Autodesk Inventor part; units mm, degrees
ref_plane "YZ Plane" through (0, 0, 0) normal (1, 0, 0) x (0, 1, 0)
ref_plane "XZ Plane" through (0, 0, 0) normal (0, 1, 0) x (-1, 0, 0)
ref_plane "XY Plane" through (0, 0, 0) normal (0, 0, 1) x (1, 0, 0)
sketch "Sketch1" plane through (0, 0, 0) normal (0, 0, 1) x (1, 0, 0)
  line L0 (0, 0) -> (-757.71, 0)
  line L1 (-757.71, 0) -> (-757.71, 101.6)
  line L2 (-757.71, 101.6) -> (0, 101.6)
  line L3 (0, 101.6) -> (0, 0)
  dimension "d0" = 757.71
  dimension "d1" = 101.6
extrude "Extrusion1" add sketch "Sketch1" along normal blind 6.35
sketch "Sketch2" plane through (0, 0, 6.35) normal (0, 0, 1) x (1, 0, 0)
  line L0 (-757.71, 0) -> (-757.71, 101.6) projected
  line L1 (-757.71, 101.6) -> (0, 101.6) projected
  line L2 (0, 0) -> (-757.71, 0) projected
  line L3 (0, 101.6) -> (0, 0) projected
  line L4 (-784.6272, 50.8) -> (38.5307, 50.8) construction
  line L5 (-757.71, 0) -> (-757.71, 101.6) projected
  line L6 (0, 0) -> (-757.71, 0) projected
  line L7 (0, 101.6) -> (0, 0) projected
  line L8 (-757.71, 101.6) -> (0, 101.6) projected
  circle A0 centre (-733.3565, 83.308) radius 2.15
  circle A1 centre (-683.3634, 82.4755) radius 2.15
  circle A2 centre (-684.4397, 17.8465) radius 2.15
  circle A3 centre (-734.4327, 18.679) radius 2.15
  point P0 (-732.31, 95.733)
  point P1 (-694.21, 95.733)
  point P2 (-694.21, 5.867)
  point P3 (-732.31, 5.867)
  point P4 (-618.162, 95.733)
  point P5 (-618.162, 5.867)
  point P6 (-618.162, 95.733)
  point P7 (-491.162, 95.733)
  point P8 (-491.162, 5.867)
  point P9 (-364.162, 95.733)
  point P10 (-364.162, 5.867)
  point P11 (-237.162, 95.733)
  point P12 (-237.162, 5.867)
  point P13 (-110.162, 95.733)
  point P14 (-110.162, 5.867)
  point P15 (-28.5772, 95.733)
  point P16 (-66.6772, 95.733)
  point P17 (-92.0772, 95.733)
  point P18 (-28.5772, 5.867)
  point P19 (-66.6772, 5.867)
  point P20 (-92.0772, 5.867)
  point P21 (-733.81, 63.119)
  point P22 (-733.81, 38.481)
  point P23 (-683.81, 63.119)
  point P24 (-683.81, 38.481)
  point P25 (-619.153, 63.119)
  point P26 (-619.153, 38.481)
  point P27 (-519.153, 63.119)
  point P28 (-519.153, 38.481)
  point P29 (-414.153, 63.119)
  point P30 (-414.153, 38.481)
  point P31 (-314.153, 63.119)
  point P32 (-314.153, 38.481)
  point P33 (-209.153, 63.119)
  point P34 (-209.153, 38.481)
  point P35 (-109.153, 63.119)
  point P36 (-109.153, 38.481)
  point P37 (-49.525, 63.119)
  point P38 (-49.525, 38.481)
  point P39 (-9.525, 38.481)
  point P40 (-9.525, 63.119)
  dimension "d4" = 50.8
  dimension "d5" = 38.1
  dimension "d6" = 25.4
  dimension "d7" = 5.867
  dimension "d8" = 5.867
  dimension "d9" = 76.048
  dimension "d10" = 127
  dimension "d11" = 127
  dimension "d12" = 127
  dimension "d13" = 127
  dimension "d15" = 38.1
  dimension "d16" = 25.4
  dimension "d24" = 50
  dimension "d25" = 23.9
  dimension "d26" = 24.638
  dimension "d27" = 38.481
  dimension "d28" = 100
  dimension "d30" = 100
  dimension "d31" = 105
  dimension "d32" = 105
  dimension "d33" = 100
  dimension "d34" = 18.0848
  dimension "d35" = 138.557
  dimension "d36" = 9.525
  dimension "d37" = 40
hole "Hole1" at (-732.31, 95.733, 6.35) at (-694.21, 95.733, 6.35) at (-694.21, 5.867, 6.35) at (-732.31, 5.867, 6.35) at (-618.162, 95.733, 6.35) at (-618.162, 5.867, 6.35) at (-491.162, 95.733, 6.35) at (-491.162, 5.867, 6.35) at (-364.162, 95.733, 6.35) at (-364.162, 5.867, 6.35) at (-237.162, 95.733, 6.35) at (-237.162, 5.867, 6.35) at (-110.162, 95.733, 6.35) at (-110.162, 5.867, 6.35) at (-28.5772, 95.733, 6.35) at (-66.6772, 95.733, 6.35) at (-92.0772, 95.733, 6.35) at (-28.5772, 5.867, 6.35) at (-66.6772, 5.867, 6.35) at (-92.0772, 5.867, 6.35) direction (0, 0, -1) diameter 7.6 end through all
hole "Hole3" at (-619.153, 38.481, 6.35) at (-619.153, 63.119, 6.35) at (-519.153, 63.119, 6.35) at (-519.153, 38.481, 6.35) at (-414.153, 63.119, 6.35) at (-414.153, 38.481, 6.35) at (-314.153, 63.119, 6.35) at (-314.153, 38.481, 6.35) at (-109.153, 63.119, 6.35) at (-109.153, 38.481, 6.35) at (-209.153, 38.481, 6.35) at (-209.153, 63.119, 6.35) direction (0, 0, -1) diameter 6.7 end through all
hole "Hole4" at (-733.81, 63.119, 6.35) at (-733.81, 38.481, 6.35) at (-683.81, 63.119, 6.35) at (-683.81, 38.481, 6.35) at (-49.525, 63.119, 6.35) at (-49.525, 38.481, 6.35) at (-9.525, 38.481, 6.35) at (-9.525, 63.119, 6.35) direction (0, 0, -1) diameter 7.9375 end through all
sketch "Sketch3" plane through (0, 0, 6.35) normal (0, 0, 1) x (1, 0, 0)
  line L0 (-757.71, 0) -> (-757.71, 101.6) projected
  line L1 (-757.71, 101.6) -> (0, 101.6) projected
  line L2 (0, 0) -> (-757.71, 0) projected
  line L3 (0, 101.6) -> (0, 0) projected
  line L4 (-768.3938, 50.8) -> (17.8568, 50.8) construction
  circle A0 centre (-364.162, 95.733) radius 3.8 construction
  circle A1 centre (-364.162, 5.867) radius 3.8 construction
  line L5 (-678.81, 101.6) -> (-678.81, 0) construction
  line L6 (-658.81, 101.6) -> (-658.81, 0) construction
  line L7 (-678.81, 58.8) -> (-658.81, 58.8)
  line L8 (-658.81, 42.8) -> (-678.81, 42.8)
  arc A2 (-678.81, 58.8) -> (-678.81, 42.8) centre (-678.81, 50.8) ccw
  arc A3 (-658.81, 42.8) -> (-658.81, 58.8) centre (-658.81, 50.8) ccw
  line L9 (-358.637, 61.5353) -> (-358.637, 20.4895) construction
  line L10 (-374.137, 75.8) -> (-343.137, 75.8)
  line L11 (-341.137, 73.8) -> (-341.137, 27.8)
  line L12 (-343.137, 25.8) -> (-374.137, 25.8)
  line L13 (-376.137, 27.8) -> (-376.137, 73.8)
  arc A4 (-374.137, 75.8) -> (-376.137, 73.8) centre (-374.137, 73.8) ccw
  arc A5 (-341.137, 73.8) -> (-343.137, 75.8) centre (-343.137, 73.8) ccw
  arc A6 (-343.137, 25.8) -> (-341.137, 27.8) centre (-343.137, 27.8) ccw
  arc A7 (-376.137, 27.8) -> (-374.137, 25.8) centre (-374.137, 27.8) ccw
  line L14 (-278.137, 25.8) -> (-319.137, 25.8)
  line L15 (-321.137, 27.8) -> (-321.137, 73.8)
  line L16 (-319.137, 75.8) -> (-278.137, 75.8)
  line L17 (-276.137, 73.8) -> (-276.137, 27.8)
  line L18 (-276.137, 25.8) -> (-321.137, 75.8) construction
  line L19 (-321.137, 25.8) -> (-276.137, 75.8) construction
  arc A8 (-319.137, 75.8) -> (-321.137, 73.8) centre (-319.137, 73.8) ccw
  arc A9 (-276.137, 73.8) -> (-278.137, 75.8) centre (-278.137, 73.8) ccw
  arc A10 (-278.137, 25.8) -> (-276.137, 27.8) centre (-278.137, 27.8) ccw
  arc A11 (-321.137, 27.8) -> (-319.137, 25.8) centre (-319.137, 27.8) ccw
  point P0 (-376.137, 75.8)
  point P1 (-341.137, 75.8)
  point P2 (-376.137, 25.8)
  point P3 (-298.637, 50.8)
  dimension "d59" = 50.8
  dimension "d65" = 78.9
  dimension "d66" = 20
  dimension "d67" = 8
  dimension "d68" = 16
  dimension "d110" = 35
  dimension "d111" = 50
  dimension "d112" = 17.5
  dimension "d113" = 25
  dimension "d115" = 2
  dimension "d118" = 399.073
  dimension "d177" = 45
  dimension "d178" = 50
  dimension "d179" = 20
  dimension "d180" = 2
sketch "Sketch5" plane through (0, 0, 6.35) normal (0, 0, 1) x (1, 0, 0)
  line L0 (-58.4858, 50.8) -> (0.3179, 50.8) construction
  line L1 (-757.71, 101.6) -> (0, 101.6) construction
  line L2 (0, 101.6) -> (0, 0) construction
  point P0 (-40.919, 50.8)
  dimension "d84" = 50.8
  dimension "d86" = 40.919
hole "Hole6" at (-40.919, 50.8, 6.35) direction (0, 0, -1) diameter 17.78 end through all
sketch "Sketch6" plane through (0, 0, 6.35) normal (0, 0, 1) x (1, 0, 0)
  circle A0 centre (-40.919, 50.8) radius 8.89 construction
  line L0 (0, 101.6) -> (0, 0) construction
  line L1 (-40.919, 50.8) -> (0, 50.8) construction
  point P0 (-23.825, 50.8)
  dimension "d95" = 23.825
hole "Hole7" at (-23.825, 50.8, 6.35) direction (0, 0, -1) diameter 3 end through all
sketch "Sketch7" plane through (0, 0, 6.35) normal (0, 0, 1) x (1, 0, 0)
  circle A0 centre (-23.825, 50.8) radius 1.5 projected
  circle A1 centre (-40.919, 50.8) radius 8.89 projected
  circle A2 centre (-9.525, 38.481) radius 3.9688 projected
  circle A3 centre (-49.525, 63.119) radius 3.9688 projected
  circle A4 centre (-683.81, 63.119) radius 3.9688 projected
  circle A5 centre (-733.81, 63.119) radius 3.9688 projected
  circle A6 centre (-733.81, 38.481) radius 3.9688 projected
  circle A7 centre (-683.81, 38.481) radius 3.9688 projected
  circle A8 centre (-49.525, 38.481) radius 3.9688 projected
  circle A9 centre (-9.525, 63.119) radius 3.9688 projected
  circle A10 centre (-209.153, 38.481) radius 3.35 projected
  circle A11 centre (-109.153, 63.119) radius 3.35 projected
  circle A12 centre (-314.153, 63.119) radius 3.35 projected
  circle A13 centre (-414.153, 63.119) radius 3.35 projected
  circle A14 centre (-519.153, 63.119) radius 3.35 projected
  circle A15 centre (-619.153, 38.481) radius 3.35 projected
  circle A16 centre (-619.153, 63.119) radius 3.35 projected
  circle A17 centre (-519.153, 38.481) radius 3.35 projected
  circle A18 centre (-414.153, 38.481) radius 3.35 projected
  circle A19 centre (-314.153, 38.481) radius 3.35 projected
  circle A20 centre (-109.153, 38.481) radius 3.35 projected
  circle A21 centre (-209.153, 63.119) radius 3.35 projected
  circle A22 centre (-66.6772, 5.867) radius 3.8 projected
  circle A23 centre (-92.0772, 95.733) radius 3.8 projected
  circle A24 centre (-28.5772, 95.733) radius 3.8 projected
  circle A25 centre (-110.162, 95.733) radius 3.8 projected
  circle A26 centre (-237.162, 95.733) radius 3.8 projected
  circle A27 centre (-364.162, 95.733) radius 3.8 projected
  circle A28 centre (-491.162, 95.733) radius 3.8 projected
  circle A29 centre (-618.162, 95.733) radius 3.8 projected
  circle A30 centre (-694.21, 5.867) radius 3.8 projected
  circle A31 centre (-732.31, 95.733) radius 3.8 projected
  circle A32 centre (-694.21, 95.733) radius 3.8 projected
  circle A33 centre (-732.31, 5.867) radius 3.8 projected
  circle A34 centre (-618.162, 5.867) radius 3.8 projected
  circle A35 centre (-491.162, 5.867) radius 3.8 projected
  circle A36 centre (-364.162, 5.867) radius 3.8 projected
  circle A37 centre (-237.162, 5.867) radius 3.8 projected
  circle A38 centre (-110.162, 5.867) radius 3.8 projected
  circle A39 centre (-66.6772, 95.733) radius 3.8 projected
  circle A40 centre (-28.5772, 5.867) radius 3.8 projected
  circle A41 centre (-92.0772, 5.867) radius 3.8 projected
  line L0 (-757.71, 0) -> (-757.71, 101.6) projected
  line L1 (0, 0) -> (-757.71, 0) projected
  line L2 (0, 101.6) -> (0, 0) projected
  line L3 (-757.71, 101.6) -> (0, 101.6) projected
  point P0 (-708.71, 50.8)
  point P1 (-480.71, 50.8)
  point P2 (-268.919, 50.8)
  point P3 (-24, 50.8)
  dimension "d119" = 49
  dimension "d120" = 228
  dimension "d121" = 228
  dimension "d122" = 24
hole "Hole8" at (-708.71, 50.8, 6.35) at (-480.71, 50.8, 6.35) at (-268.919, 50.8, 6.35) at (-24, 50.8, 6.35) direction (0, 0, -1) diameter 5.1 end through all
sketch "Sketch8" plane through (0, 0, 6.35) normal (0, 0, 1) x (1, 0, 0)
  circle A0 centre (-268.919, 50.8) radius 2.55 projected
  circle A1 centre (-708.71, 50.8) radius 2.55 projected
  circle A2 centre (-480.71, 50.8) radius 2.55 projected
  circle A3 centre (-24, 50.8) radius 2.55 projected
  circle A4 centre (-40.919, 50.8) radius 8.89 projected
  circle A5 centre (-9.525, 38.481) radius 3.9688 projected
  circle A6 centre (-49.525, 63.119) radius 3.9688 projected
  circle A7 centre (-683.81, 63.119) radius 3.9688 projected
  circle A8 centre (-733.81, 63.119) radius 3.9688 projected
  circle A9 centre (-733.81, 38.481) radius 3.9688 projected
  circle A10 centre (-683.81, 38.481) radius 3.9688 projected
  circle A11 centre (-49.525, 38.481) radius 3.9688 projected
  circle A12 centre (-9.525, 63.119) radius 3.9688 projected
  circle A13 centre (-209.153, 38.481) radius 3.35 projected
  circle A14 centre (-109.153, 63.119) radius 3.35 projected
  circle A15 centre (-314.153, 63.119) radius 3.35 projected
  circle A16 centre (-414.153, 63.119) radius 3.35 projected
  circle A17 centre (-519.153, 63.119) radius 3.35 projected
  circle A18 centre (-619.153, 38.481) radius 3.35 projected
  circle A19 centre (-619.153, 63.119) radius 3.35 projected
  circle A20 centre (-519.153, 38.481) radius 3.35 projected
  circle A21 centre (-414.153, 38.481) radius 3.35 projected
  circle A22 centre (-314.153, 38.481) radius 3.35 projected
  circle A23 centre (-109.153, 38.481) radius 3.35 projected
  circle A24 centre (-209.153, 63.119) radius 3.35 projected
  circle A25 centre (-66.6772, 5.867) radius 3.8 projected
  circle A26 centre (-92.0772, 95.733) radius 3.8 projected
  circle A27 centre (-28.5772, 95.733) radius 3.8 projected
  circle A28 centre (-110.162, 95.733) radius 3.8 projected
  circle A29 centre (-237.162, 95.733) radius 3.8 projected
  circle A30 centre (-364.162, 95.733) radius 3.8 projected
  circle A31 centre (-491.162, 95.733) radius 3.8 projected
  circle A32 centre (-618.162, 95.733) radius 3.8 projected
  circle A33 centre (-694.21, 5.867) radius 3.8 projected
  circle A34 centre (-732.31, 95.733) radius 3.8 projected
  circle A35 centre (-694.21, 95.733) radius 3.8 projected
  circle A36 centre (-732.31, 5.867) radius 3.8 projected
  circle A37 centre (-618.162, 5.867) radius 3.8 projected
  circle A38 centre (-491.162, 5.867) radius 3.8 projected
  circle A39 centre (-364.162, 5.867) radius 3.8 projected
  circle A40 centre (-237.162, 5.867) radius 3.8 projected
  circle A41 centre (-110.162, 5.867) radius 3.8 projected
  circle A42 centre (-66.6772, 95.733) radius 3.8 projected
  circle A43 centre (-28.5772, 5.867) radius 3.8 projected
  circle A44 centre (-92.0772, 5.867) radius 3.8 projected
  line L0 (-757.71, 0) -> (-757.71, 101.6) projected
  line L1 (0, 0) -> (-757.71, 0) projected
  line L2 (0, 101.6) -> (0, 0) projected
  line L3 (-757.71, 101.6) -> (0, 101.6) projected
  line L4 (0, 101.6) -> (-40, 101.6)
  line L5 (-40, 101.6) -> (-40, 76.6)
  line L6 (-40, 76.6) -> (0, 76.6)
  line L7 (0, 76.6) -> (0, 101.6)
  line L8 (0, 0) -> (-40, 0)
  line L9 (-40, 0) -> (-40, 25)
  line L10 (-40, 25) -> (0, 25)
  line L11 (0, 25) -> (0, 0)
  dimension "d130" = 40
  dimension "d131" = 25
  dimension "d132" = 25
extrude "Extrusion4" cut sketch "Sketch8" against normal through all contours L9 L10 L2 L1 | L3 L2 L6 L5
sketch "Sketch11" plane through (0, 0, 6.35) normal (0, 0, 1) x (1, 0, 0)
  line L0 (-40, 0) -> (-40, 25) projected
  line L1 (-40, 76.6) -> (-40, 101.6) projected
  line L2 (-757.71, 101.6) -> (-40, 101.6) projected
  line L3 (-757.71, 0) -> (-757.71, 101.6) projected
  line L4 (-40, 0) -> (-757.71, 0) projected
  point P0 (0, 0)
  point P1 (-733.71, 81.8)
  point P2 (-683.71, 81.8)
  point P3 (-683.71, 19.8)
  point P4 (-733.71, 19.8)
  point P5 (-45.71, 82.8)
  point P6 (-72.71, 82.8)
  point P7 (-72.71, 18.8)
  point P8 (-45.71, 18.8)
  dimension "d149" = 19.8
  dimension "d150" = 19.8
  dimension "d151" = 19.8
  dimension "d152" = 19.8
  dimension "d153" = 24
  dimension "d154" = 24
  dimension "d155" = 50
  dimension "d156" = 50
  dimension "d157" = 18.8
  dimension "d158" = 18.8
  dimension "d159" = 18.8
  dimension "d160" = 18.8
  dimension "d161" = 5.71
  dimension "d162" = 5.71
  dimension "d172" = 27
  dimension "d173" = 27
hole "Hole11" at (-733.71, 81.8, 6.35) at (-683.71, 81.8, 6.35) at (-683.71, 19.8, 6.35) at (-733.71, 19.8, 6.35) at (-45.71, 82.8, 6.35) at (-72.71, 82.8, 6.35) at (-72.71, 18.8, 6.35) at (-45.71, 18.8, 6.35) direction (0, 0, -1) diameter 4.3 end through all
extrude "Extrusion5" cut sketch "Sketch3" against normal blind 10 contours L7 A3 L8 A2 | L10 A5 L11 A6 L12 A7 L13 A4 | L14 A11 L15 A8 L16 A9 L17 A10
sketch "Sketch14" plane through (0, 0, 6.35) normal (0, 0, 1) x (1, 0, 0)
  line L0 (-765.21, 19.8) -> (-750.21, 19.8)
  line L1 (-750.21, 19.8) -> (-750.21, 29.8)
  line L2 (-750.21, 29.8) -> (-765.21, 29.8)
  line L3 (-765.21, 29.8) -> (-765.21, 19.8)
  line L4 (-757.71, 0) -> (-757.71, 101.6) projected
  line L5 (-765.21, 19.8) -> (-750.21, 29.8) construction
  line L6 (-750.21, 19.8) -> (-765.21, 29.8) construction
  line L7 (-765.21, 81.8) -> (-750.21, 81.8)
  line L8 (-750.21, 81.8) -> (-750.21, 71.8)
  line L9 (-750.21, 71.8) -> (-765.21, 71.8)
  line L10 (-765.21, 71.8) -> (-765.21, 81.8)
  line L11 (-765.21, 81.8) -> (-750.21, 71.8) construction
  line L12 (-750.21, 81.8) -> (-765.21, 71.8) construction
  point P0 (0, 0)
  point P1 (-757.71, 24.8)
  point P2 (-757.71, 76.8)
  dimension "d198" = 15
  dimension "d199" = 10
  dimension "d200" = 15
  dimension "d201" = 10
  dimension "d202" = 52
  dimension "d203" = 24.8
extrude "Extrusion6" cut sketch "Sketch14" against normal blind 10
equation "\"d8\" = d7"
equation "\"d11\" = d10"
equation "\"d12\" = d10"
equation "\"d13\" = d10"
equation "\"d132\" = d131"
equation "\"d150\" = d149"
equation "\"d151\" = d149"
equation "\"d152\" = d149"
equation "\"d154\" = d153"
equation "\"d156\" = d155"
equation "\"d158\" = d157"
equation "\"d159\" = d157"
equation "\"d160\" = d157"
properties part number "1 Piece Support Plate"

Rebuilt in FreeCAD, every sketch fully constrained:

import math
import FreeCAD as App
import Part
import Sketcher

V = App.Vector


def add_polygon(sketch, points):
    """Adds a closed chain of lines whose ends are joined by coincident constraints."""
    first, n = sketch.GeometryCount, len(points)
    for a, b in zip(points, points[1:] + points[:1]):
        sketch.addGeometry(Part.LineSegment(App.Vector(*a, 0), App.Vector(*b, 0)), False)
    for i in range(n):
        sketch.addConstraint(Sketcher.Constraint("Coincident", first + i, 2, first + (i + 1) % n, 1))

doc = App.newDocument("Part")
params = doc.addObject("Spreadsheet::Sheet", "Params")
for row, (alias, value) in enumerate([
    ("sketch1_height", "101.6 mm"),
    ("sketch1_width", "757.71 mm"),
    ("pad1_length", "6.35 mm"),
    ("sketch2_diameter", "7.6 mm"),
    ("hole_diameter", "7.6 mm"),
    ("sketch3_diameter", "6.7 mm"),
    ("hole2_diameter", "6.7 mm"),
    ("hole3_diameter", "7.9375 mm"),
    ("sketch5_diameter", "17.78 mm"),
    ("hole4_diameter", "17.78 mm"),
    ("sketch6_diameter", "3 mm"),
    ("hole5_diameter", "3 mm"),
    ("sketch7_diameter", "5.1 mm"),
    ("hole6_diameter", "5.1 mm"),
    ("sketch8_width", "40 mm"),
    ("sketch8_height", "25 mm"),
    ("sketch8_diameter", "7.6 mm"),
    ("sketch9_diameter", "4.3 mm"),
    ("hole7_diameter", "4.3 mm"),
    ("sketch10_radius", "8 mm"),
    ("sketch10_radius2", "2 mm"),
    ("sketch10_width", "20 mm"),
    ("sketch10_width2", "41 mm"),
    ("sketch10_height", "46 mm"),
    ("pocket2_length", "10 mm"),
    ("sketch11_width", "15 mm"),
    ("sketch11_height", "10 mm"),
    ("pocket3_length", "10 mm"),
], start=1):
    params.set(f"A{row}", alias)
    params.set(f"B{row}", "=" + value)
    params.setAlias(f"B{row}", alias)

body = doc.addObject("PartDesign::Body", "Body")

sketch1 = body.newObject("Sketcher::SketchObject", "Sketch")
sketch1.AttachmentSupport = (doc.getObject("XY_Plane"), [""])
sketch1.MapMode = "FlatFace"
add_polygon(sketch1, [(-758, 0), (0, 0), (0, 102), (-758, 102)])
sketch1.addConstraint([
    Sketcher.Constraint("Horizontal", 0),
    Sketcher.Constraint("Vertical", 1),
    Sketcher.Constraint("Horizontal", 2),
    Sketcher.Constraint("Vertical", 3),
    Sketcher.Constraint("Coincident", 0, 2, -1, 1),
    Sketcher.Constraint("DistanceY", 1, 1, 1, 2, 101.6),
    Sketcher.Constraint("DistanceX", 0, 1, 0, 2, 757.71),
])
sketch1.setExpression("Constraints[9]", "Params.sketch1_height")
sketch1.setExpression("Constraints[10]", "Params.sketch1_width")
pad1 = body.newObject("PartDesign::Pad", "Pad")
pad1.Profile = sketch1
pad1.setExpression("Length", "Params.pad1_length")

sketch2 = body.newObject("Sketcher::SketchObject", "Sketch001")
sketch2.AttachmentSupport = (doc.getObject("XY_Plane"), [""])
sketch2.MapMode = "FlatFace"
sketch2.AttachmentOffset = App.Placement(V(0, 0, 6.35), App.Rotation())
sketch2.addGeometry([
    Part.Circle(V(-732.3, 95.7, 0), V(0, 0, 1), 3.8),
    Part.Circle(V(-694.2, 95.7, 0), V(0, 0, 1), 3.8),
    Part.Circle(V(-694.2, 5.9, 0), V(0, 0, 1), 3.8),
    Part.Circle(V(-732.3, 5.9, 0), V(0, 0, 1), 3.8),
    Part.Circle(V(-618.2, 95.7, 0), V(0, 0, 1), 3.8),
    Part.Circle(V(-618.2, 5.9, 0), V(0, 0, 1), 3.8),
    Part.Circle(V(-491.2, 95.7, 0), V(0, 0, 1), 3.8),
    Part.Circle(V(-491.2, 5.9, 0), V(0, 0, 1), 3.8),
    Part.Circle(V(-364.2, 95.7, 0), V(0, 0, 1), 3.8),
    Part.Circle(V(-364.2, 5.9, 0), V(0, 0, 1), 3.8),
    Part.Circle(V(-237.2, 95.7, 0), V(0, 0, 1), 3.8),
    Part.Circle(V(-237.2, 5.9, 0), V(0, 0, 1), 3.8),
    Part.Circle(V(-110.2, 95.7, 0), V(0, 0, 1), 3.8),
    Part.Circle(V(-110.2, 5.9, 0), V(0, 0, 1), 3.8),
    Part.Circle(V(-28.6, 95.7, 0), V(0, 0, 1), 3.8),
    Part.Circle(V(-66.7, 95.7, 0), V(0, 0, 1), 3.8),
    Part.Circle(V(-92.1, 95.7, 0), V(0, 0, 1), 3.8),
    Part.Circle(V(-28.6, 5.9, 0), V(0, 0, 1), 3.8),
    Part.Circle(V(-66.7, 5.9, 0), V(0, 0, 1), 3.8),
    Part.Circle(V(-92.1, 5.9, 0), V(0, 0, 1), 3.8),
], False)
sketch2.addConstraint([
    Sketcher.Constraint("Equal", 0, 1),
    Sketcher.Constraint("Equal", 1, 2),
    Sketcher.Constraint("Equal", 2, 3),
    Sketcher.Constraint("Equal", 3, 4),
    Sketcher.Constraint("Equal", 4, 5),
    Sketcher.Constraint("Equal", 5, 6),
    Sketcher.Constraint("Equal", 6, 7),
    Sketcher.Constraint("Equal", 7, 8),
    Sketcher.Constraint("Equal", 8, 9),
    Sketcher.Constraint("Equal", 9, 10),
    Sketcher.Constraint("Equal", 10, 11),
    Sketcher.Constraint("Equal", 11, 12),
    Sketcher.Constraint("Equal", 12, 13),
    Sketcher.Constraint("Equal", 13, 14),
    Sketcher.Constraint("Equal", 14, 15),
    Sketcher.Constraint("Equal", 15, 16),
    Sketcher.Constraint("Equal", 16, 17),
    Sketcher.Constraint("Equal", 17, 18),
    Sketcher.Constraint("Equal", 18, 19),
    Sketcher.Constraint("Horizontal", 0, 3, 1, 3),
    Sketcher.Constraint("Horizontal", 2, 3, 3, 3),
    Sketcher.Constraint("Horizontal", 1, 3, 4, 3),
    Sketcher.Constraint("Horizontal", 3, 3, 5, 3),
    Sketcher.Constraint("Horizontal", 4, 3, 6, 3),
    Sketcher.Constraint("Horizontal", 5, 3, 7, 3),
    Sketcher.Constraint("Horizontal", 6, 3, 8, 3),
    Sketcher.Constraint("Horizontal", 7, 3, 9, 3),
    Sketcher.Constraint("Horizontal", 8, 3, 10, 3),
    Sketcher.Constraint("Horizontal", 9, 3, 11, 3),
    Sketcher.Constraint("Horizontal", 10, 3, 12, 3),
    Sketcher.Constraint("Horizontal", 11, 3, 13, 3),
    Sketcher.Constraint("Horizontal", 12, 3, 14, 3),
    Sketcher.Constraint("Horizontal", 14, 3, 15, 3),
    Sketcher.Constraint("Horizontal", 15, 3, 16, 3),
    Sketcher.Constraint("Horizontal", 13, 3, 17, 3),
    Sketcher.Constraint("Horizontal", 17, 3, 18, 3),
    Sketcher.Constraint("Horizontal", 18, 3, 19, 3),
    Sketcher.Constraint("Vertical", 1, 3, 2, 3),
    Sketcher.Constraint("Vertical", 0, 3, 3, 3),
    Sketcher.Constraint("Vertical", 4, 3, 5, 3),
    Sketcher.Constraint("Vertical", 6, 3, 7, 3),
    Sketcher.Constraint("Vertical", 8, 3, 9, 3),
    Sketcher.Constraint("Vertical", 10, 3, 11, 3),
    Sketcher.Constraint("Vertical", 12, 3, 13, 3),
    Sketcher.Constraint("Vertical", 14, 3, 17, 3),
    Sketcher.Constraint("Vertical", 15, 3, 18, 3),
    Sketcher.Constraint("Vertical", 16, 3, 19, 3),
    Sketcher.Constraint("Diameter", 0, 7.6),
    Sketcher.Constraint("DistanceX", 4, 3, 6, 3, 127.0),
    Sketcher.Constraint("DistanceX", 6, 3, 8, 3, 127.0),
    Sketcher.Constraint("DistanceX", 8, 3, 10, 3, 127.0),
    Sketcher.Constraint("DistanceX", 10, 3, 12, 3, 127.0),
    Sketcher.Constraint("DistanceX", 0, 3, 1, 3, 38.1),
    Sketcher.Constraint("DistanceX", 15, 3, 14, 3, 38.1),
    Sketcher.Constraint("DistanceX", 16, 3, 15, 3, 25.4),
    Sketcher.Constraint("DistanceX", 0, 3, -1, 1, 732.31),
    Sketcher.Constraint("DistanceY", -1, 1, 0, 3, 95.733),
    Sketcher.Constraint("DistanceY", -1, 1, 2, 3, 5.867),
    Sketcher.Constraint("DistanceX", 4, 3, -1, 1, 618.162),
    Sketcher.Constraint("DistanceX", 14, 3, -1, 1, 28.5772),
])
sketch2.setExpression("Constraints[47]", "Params.sketch2_diameter")
doc.recompute()
hole = body.newObject("PartDesign::Hole", "Hole")
hole.Profile = sketch2
hole.ThreadType = "None"
hole.setExpression("Diameter", "Params.hole_diameter")
hole.DepthType = "ThroughAll"

sketch3 = body.newObject("Sketcher::SketchObject", "Sketch002")
sketch3.AttachmentSupport = (doc.getObject("XY_Plane"), [""])
sketch3.MapMode = "FlatFace"
sketch3.AttachmentOffset = App.Placement(V(0, 0, 6.35), App.Rotation())
sketch3.addGeometry([
    Part.Circle(V(-619.2, 38.5, 0), V(0, 0, 1), 3.4),
    Part.Circle(V(-619.2, 63.1, 0), V(0, 0, 1), 3.4),
    Part.Circle(V(-519.2, 63.1, 0), V(0, 0, 1), 3.4),
    Part.Circle(V(-519.2, 38.5, 0), V(0, 0, 1), 3.4),
    Part.Circle(V(-414.2, 63.1, 0), V(0, 0, 1), 3.4),
    Part.Circle(V(-414.2, 38.5, 0), V(0, 0, 1), 3.4),
    Part.Circle(V(-314.2, 63.1, 0), V(0, 0, 1), 3.4),
    Part.Circle(V(-314.2, 38.5, 0), V(0, 0, 1), 3.4),
    Part.Circle(V(-109.2, 63.1, 0), V(0, 0, 1), 3.4),
    Part.Circle(V(-109.2, 38.5, 0), V(0, 0, 1), 3.4),
    Part.Circle(V(-209.2, 38.5, 0), V(0, 0, 1), 3.4),
    Part.Circle(V(-209.2, 63.1, 0), V(0, 0, 1), 3.4),
], False)
sketch3.addConstraint([
    Sketcher.Constraint("Equal", 0, 1),
    Sketcher.Constraint("Equal", 1, 2),
    Sketcher.Constraint("Equal", 2, 3),
    Sketcher.Constraint("Equal", 3, 4),
    Sketcher.Constraint("Equal", 4, 5),
    Sketcher.Constraint("Equal", 5, 6),
    Sketcher.Constraint("Equal", 6, 7),
    Sketcher.Constraint("Equal", 7, 8),
    Sketcher.Constraint("Equal", 8, 9),
    Sketcher.Constraint("Equal", 9, 10),
    Sketcher.Constraint("Equal", 10, 11),
    Sketcher.Constraint("Horizontal", 1, 3, 2, 3),
    Sketcher.Constraint("Horizontal", 0, 3, 3, 3),
    Sketcher.Constraint("Horizontal", 2, 3, 4, 3),
    Sketcher.Constraint("Horizontal", 3, 3, 5, 3),
    Sketcher.Constraint("Horizontal", 4, 3, 6, 3),
    Sketcher.Constraint("Horizontal", 5, 3, 7, 3),
    Sketcher.Constraint("Horizontal", 6, 3, 8, 3),
    Sketcher.Constraint("Horizontal", 7, 3, 9, 3),
    Sketcher.Constraint("Horizontal", 9, 3, 10, 3),
    Sketcher.Constraint("Horizontal", 8, 3, 11, 3),
    Sketcher.Constraint("Vertical", 0, 3, 1, 3),
    Sketcher.Constraint("Vertical", 2, 3, 3, 3),
    Sketcher.Constraint("Vertical", 4, 3, 5, 3),
    Sketcher.Constraint("Vertical", 6, 3, 7, 3),
    Sketcher.Constraint("Vertical", 8, 3, 9, 3),
    Sketcher.Constraint("Vertical", 10, 3, 11, 3),
    Sketcher.Constraint("Diameter", 0, 6.7),
    Sketcher.Constraint("DistanceX", 1, 3, 2, 3, 100.0),
    Sketcher.Constraint("DistanceX", 2, 3, 4, 3, 105.0),
    Sketcher.Constraint("DistanceX", 4, 3, 6, 3, 100.0),
    Sketcher.Constraint("DistanceX", 6, 3, 8, 3, 205.0),
    Sketcher.Constraint("DistanceX", 10, 3, 9, 3, 100.0),
    Sketcher.Constraint("DistanceX", 0, 3, -1, 1, 619.153),
    Sketcher.Constraint("DistanceY", -1, 1, 0, 3, 38.481),
    Sketcher.Constraint("DistanceY", -1, 1, 1, 3, 63.119),
])
sketch3.setExpression("Constraints[27]", "Params.sketch3_diameter")
doc.recompute()
hole2 = body.newObject("PartDesign::Hole", "Hole001")
hole2.Profile = sketch3
hole2.ThreadType = "None"
hole2.setExpression("Diameter", "Params.hole2_diameter")
hole2.DepthType = "ThroughAll"

sketch4 = body.newObject("Sketcher::SketchObject", "Sketch003")
sketch4.AttachmentSupport = (doc.getObject("XY_Plane"), [""])
sketch4.MapMode = "FlatFace"
sketch4.AttachmentOffset = App.Placement(V(0, 0, 6.35), App.Rotation())
sketch4.addGeometry([
    Part.Circle(V(-733.8, 63.1, 0), V(0, 0, 1), 4),
    Part.Circle(V(-733.8, 38.5, 0), V(0, 0, 1), 4),
    Part.Circle(V(-683.8, 63.1, 0), V(0, 0, 1), 4),
    Part.Circle(V(-683.8, 38.5, 0), V(0, 0, 1), 4),
    Part.Circle(V(-49.5, 63.1, 0), V(0, 0, 1), 4),
    Part.Circle(V(-49.5, 38.5, 0), V(0, 0, 1), 4),
    Part.Circle(V(-9.5, 38.5, 0), V(0, 0, 1), 4),
    Part.Circle(V(-9.5, 63.1, 0), V(0, 0, 1), 4),
], False)
sketch4.addConstraint([
    Sketcher.Constraint("Equal", 0, 1),
    Sketcher.Constraint("Equal", 1, 2),
    Sketcher.Constraint("Equal", 2, 3),
    Sketcher.Constraint("Equal", 3, 4),
    Sketcher.Constraint("Equal", 4, 5),
    Sketcher.Constraint("Equal", 5, 6),
    Sketcher.Constraint("Equal", 6, 7),
    Sketcher.Constraint("Horizontal", 0, 3, 2, 3),
    Sketcher.Constraint("Horizontal", 1, 3, 3, 3),
    Sketcher.Constraint("Horizontal", 2, 3, 4, 3),
    Sketcher.Constraint("Horizontal", 3, 3, 5, 3),
    Sketcher.Constraint("Horizontal", 5, 3, 6, 3),
    Sketcher.Constraint("Horizontal", 4, 3, 7, 3),
    Sketcher.Constraint("Vertical", 0, 3, 1, 3),
    Sketcher.Constraint("Vertical", 2, 3, 3, 3),
    Sketcher.Constraint("Vertical", 4, 3, 5, 3),
    Sketcher.Constraint("Vertical", 6, 3, 7, 3),
    Sketcher.Constraint("DistanceX", 0, 3, 2, 3, 50.0),
    Sketcher.Constraint("DistanceX", 5, 3, 6, 3, 40.0),
    Sketcher.Constraint("Diameter", 0, 7.9375),
    Sketcher.Constraint("DistanceX", 0, 3, -1, 1, 733.81),
    Sketcher.Constraint("DistanceY", -1, 1, 0, 3, 63.119),
    Sketcher.Constraint("DistanceY", -1, 1, 1, 3, 38.481),
    Sketcher.Constraint("DistanceX", 4, 3, -1, 1, 49.525),
])
doc.recompute()
hole3 = body.newObject("PartDesign::Hole", "Hole002")
hole3.Profile = sketch4
hole3.ThreadType = "None"
hole3.setExpression("Diameter", "Params.hole3_diameter")
hole3.DepthType = "ThroughAll"

sketch5 = body.newObject("Sketcher::SketchObject", "Sketch004")
sketch5.AttachmentSupport = (doc.getObject("XY_Plane"), [""])
sketch5.MapMode = "FlatFace"
sketch5.AttachmentOffset = App.Placement(V(0, 0, 6.35), App.Rotation())
sketch5.addGeometry(Part.Circle(V(-41, 51, 0), V(0, 0, 1), 9), False)
sketch5.addConstraint([
    Sketcher.Constraint("Diameter", 0, 17.78),
    Sketcher.Constraint("DistanceY", -1, 1, 0, 3, 50.8),
    Sketcher.Constraint("DistanceX", 0, 3, -1, 1, 40.919),
])
sketch5.setExpression("Constraints[0]", "Params.sketch5_diameter")
doc.recompute()
hole4 = body.newObject("PartDesign::Hole", "Hole003")
hole4.Profile = sketch5
hole4.ThreadType = "None"
hole4.setExpression("Diameter", "Params.hole4_diameter")
hole4.DepthType = "ThroughAll"

sketch6 = body.newObject("Sketcher::SketchObject", "Sketch005")
sketch6.AttachmentSupport = (doc.getObject("XY_Plane"), [""])
sketch6.MapMode = "FlatFace"
sketch6.AttachmentOffset = App.Placement(V(0, 0, 6.35), App.Rotation())
sketch6.addGeometry(Part.Circle(V(-23.8, 50.8, 0), V(0, 0, 1), 1.5), False)
sketch6.addConstraint([
    Sketcher.Constraint("Diameter", 0, 3.0),
    Sketcher.Constraint("DistanceY", -1, 1, 0, 3, 50.8),
    Sketcher.Constraint("DistanceX", 0, 3, -1, 1, 23.825),
])
sketch6.setExpression("Constraints[0]", "Params.sketch6_diameter")
doc.recompute()
hole5 = body.newObject("PartDesign::Hole", "Hole004")
hole5.Profile = sketch6
hole5.ThreadType = "None"
hole5.setExpression("Diameter", "Params.hole5_diameter")
hole5.DepthType = "ThroughAll"

sketch7 = body.newObject("Sketcher::SketchObject", "Sketch006")
sketch7.AttachmentSupport = (doc.getObject("XY_Plane"), [""])
sketch7.MapMode = "FlatFace"
sketch7.AttachmentOffset = App.Placement(V(0, 0, 6.35), App.Rotation())
sketch7.addGeometry([
    Part.Circle(V(-708.7, 50.8, 0), V(0, 0, 1), 2.5),
    Part.Circle(V(-480.7, 50.8, 0), V(0, 0, 1), 2.5),
    Part.Circle(V(-268.9, 50.8, 0), V(0, 0, 1), 2.5),
    Part.Circle(V(-24, 50.8, 0), V(0, 0, 1), 2.5),
], False)
sketch7.addConstraint([
    Sketcher.Constraint("Equal", 0, 1),
    Sketcher.Constraint("Equal", 1, 2),
    Sketcher.Constraint("Equal", 2, 3),
    Sketcher.Constraint("Horizontal", 0, 3, 1, 3),
    Sketcher.Constraint("Horizontal", 1, 3, 2, 3),
    Sketcher.Constraint("Horizontal", 2, 3, 3, 3),
    Sketcher.Constraint("Diameter", 0, 5.1),
    Sketcher.Constraint("DistanceX", 3, 3, -1, 1, 24.0),
    Sketcher.Constraint("DistanceX", 0, 3, 1, 3, 228.0),
    Sketcher.Constraint("DistanceY", -1, 1, 0, 3, 50.8),
    Sketcher.Constraint("DistanceX", 0, 3, -1, 1, 708.71),
    Sketcher.Constraint("DistanceX", 2, 3, -1, 1, 268.919),
])
sketch7.setExpression("Constraints[6]", "Params.sketch7_diameter")
doc.recompute()
hole6 = body.newObject("PartDesign::Hole", "Hole005")
hole6.Profile = sketch7
hole6.ThreadType = "None"
hole6.setExpression("Diameter", "Params.hole6_diameter")
hole6.DepthType = "ThroughAll"

sketch8 = body.newObject("Sketcher::SketchObject", "Sketch007")
sketch8.AttachmentSupport = (doc.getObject("XY_Plane"), [""])
sketch8.MapMode = "FlatFace"
sketch8.AttachmentOffset = App.Placement(V(0, 0, 6.35), App.Rotation())
add_polygon(sketch8, [(-40, 25), (-40, 0), (0, 0), (0, 25)])
sketch8.addGeometry(Part.Circle(V(-28.6, 5.9, 0), V(0, 0, 1), 3.8), False)
add_polygon(sketch8, [(0, 101.6), (-40, 101.6), (-40, 76.6), (0, 76.6)])
sketch8.addGeometry(Part.Circle(V(-28.6, 95.7, 0), V(0, 0, 1), 3.8), False)
sketch8.addConstraint([
    Sketcher.Constraint("Vertical", 0),
    Sketcher.Constraint("Horizontal", 1),
    Sketcher.Constraint("Vertical", 2),
    Sketcher.Constraint("Horizontal", 3),
    Sketcher.Constraint("Horizontal", 5),
    Sketcher.Constraint("Vertical", 6),
    Sketcher.Constraint("Horizontal", 7),
    Sketcher.Constraint("Vertical", 8),
    Sketcher.Constraint("Coincident", 1, 2, -1, 1),
    Sketcher.Constraint("Equal", 4, 9),
    Sketcher.Constraint("PointOnObject", 7, 2, -2),
    Sketcher.Constraint("Vertical", 4, 3, 9, 3),
    Sketcher.Constraint("Vertical", 3, 2, 5, 2),
    Sketcher.Constraint("Equal", 2, 6),
    Sketcher.Constraint("DistanceX", 1, 1, 1, 2, 40.0),
    Sketcher.Constraint("DistanceY", 0, 2, 0, 1, 25.0),
    Sketcher.Constraint("Diameter", 4, 7.6),
    Sketcher.Constraint("DistanceY", -1, 1, 5, 2, 101.6),
    Sketcher.Constraint("DistanceY", -1, 1, 4, 3, 5.867),
    Sketcher.Constraint("DistanceY", -1, 1, 9, 3, 95.733),
    Sketcher.Constraint("DistanceX", 4, 3, -1, 1, 28.5772),
])
sketch8.setExpression("Constraints[22]", "Params.sketch8_width")
sketch8.setExpression("Constraints[23]", "Params.sketch8_height")
sketch8.setExpression("Constraints[24]", "Params.sketch8_diameter")
pocket1 = body.newObject("PartDesign::Pocket", "Pocket")
pocket1.Profile = sketch8
pocket1.Type = "ThroughAll"

sketch9 = body.newObject("Sketcher::SketchObject", "Sketch008")
sketch9.AttachmentSupport = (doc.getObject("XY_Plane"), [""])
sketch9.MapMode = "FlatFace"
sketch9.AttachmentOffset = App.Placement(V(0, 0, 6.35), App.Rotation())
sketch9.addGeometry([
    Part.Circle(V(-733.7, 81.8, 0), V(0, 0, 1), 2.1),
    Part.Circle(V(-683.7, 81.8, 0), V(0, 0, 1), 2.1),
    Part.Circle(V(-683.7, 19.8, 0), V(0, 0, 1), 2.1),
    Part.Circle(V(-733.7, 19.8, 0), V(0, 0, 1), 2.1),
    Part.Circle(V(-45.7, 82.8, 0), V(0, 0, 1), 2.1),
    Part.Circle(V(-72.7, 82.8, 0), V(0, 0, 1), 2.1),
    Part.Circle(V(-72.7, 18.8, 0), V(0, 0, 1), 2.1),
    Part.Circle(V(-45.7, 18.8, 0), V(0, 0, 1), 2.1),
], False)
sketch9.addConstraint([
    Sketcher.Constraint("Equal", 0, 1),
    Sketcher.Constraint("Equal", 1, 2),
    Sketcher.Constraint("Equal", 2, 3),
    Sketcher.Constraint("Equal", 3, 4),
    Sketcher.Constraint("Equal", 4, 5),
    Sketcher.Constraint("Equal", 5, 6),
    Sketcher.Constraint("Equal", 6, 7),
    Sketcher.Constraint("Horizontal", 0, 3, 1, 3),
    Sketcher.Constraint("Horizontal", 2, 3, 3, 3),
    Sketcher.Constraint("Horizontal", 4, 3, 5, 3),
    Sketcher.Constraint("Horizontal", 6, 3, 7, 3),
    Sketcher.Constraint("Vertical", 1, 3, 2, 3),
    Sketcher.Constraint("Vertical", 0, 3, 3, 3),
    Sketcher.Constraint("Vertical", 5, 3, 6, 3),
    Sketcher.Constraint("Vertical", 4, 3, 7, 3),
    Sketcher.Constraint("Diameter", 0, 4.3),
    Sketcher.Constraint("DistanceX", 0, 3, 1, 3, 50.0),
    Sketcher.Constraint("DistanceY", 2, 3, 1, 3, 62.0),
    Sketcher.Constraint("DistanceX", 1, 3, 4, 3, 638.0),
    Sketcher.Constraint("DistanceY", 1, 3, 4, 3, 1.0),
    Sketcher.Constraint("DistanceX", 5, 3, 4, 3, 27.0),
    Sketcher.Constraint("DistanceY", 6, 3, 5, 3, 64.0),
    Sketcher.Constraint("DistanceY", -1, 1, 0, 3, 81.8),
    Sketcher.Constraint("DistanceX", 0, 3, -1, 1, 733.71),
])
sketch9.setExpression("Constraints[15]", "Params.sketch9_diameter")
doc.recompute()
hole7 = body.newObject("PartDesign::Hole", "Hole006")
hole7.Profile = sketch9
hole7.ThreadType = "None"
hole7.setExpression("Diameter", "Params.hole7_diameter")
hole7.DepthType = "ThroughAll"

sketch10 = body.newObject("Sketcher::SketchObject", "Sketch009")
sketch10.AttachmentSupport = (doc.getObject("XY_Plane"), [""])
sketch10.MapMode = "FlatFace"
sketch10.AttachmentOffset = App.Placement(V(0, 0, 6.35), App.Rotation())
sketch10.addGeometry([
    Part.LineSegment(V(-658.8, 58.8, 0), V(-678.8, 58.8, 0)),
    Part.ArcOfCircle(Part.Circle(V(-678.8, 50.8, 0), V(0, 0, 1), 8), math.radians(90), math.radians(270)),
    Part.LineSegment(V(-678.8, 42.8, 0), V(-658.8, 42.8, 0)),
    Part.ArcOfCircle(Part.Circle(V(-658.8, 50.8, 0), V(0, 0, 1), 8), math.radians(-90), math.radians(90)),
    Part.LineSegment(V(-343.1, 75.8, 0), V(-374.1, 75.8, 0)),
    Part.ArcOfCircle(Part.Circle(V(-374.1, 73.8, 0), V(0, 0, 1), 2), math.radians(90), math.radians(180)),
    Part.LineSegment(V(-376.1, 73.8, 0), V(-376.1, 27.8, 0)),
    Part.ArcOfCircle(Part.Circle(V(-374.1, 27.8, 0), V(0, 0, 1), 2), math.radians(180), math.radians(270)),
    Part.LineSegment(V(-374.1, 25.8, 0), V(-343.1, 25.8, 0)),
    Part.ArcOfCircle(Part.Circle(V(-343.1, 27.8, 0), V(0, 0, 1), 2), math.radians(-90), math.radians(0)),
    Part.LineSegment(V(-341.1, 27.8, 0), V(-341.1, 73.8, 0)),
    Part.ArcOfCircle(Part.Circle(V(-343.1, 73.8, 0), V(0, 0, 1), 2), math.radians(0), math.radians(90)),
    Part.LineSegment(V(-319.1, 25.8, 0), V(-278.1, 25.8, 0)),
    Part.ArcOfCircle(Part.Circle(V(-278.1, 27.8, 0), V(0, 0, 1), 2), math.radians(-90), math.radians(0)),
    Part.LineSegment(V(-276.1, 27.8, 0), V(-276.1, 73.8, 0)),
    Part.ArcOfCircle(Part.Circle(V(-278.1, 73.8, 0), V(0, 0, 1), 2), math.radians(0), math.radians(90)),
    Part.LineSegment(V(-278.1, 75.8, 0), V(-319.1, 75.8, 0)),
    Part.ArcOfCircle(Part.Circle(V(-319.1, 73.8, 0), V(0, 0, 1), 2), math.radians(90), math.radians(180)),
    Part.LineSegment(V(-321.1, 73.8, 0), V(-321.1, 27.8, 0)),
    Part.ArcOfCircle(Part.Circle(V(-319.1, 27.8, 0), V(0, 0, 1), 2), math.radians(180), math.radians(270)),
], False)
sketch10.addConstraint([
    Sketcher.Constraint("Tangent", 0, 2, 1, 1),
    Sketcher.Constraint("Tangent", 1, 2, 2, 1),
    Sketcher.Constraint("Tangent", 2, 2, 3, 1),
    Sketcher.Constraint("Tangent", 3, 2, 0, 1),
    Sketcher.Constraint("Tangent", 4, 2, 5, 1),
    Sketcher.Constraint("Tangent", 5, 2, 6, 1),
    Sketcher.Constraint("Tangent", 6, 2, 7, 1),
    Sketcher.Constraint("Tangent", 7, 2, 8, 1),
    Sketcher.Constraint("Tangent", 8, 2, 9, 1),
    Sketcher.Constraint("Tangent", 9, 2, 10, 1),
    Sketcher.Constraint("Tangent", 10, 2, 11, 1),
    Sketcher.Constraint("Tangent", 11, 2, 4, 1),
    Sketcher.Constraint("Tangent", 12, 2, 13, 1),
    Sketcher.Constraint("Tangent", 13, 2, 14, 1),
    Sketcher.Constraint("Tangent", 14, 2, 15, 1),
    Sketcher.Constraint("Tangent", 15, 2, 16, 1),
    Sketcher.Constraint("Tangent", 16, 2, 17, 1),
    Sketcher.Constraint("Tangent", 17, 2, 18, 1),
    Sketcher.Constraint("Tangent", 18, 2, 19, 1),
    Sketcher.Constraint("Tangent", 19, 2, 12, 1),
    Sketcher.Constraint("Horizontal", 0),
    Sketcher.Constraint("Horizontal", 2),
    Sketcher.Constraint("Horizontal", 4),
    Sketcher.Constraint("Vertical", 6),
    Sketcher.Constraint("Horizontal", 8),
    Sketcher.Constraint("Vertical", 10),
    Sketcher.Constraint("Horizontal", 12),
    Sketcher.Constraint("Vertical", 14),
    Sketcher.Constraint("Horizontal", 16),
    Sketcher.Constraint("Vertical", 18),
    Sketcher.Constraint("Equal", 5, 7),
    Sketcher.Constraint("Equal", 7, 9),
    Sketcher.Constraint("Equal", 9, 11),
    Sketcher.Constraint("Equal", 11, 13),
    Sketcher.Constraint("Equal", 13, 15),
    Sketcher.Constraint("Equal", 15, 17),
    Sketcher.Constraint("Equal", 17, 19),
    Sketcher.Constraint("Horizontal", 9, 3, 13, 3),
    Sketcher.Constraint("Horizontal", 11, 3, 15, 3),
    Sketcher.Constraint("Radius", 1, 8.0),
    Sketcher.Constraint("Radius", 5, 2.0),
    Sketcher.Constraint("DistanceX", 0, 2, 0, 1, 20.0),
    Sketcher.Constraint("DistanceX", 5, 2, 10, 2, 35.0),
    Sketcher.Constraint("DistanceX", 10, 2, 17, 2, 20.0),
    Sketcher.Constraint("DistanceY", -1, 1, 1, 3, 50.8),
    Sketcher.Constraint("DistanceX", 12, 1, 12, 2, 41.0),
    Sketcher.Constraint("DistanceY", 6, 2, 6, 1, 46.0),
    Sketcher.Constraint("DistanceY", 3, 3, 5, 3, 23.0),
    Sketcher.Constraint("DistanceX", 1, 3, -1, 1, 678.81),
    Sketcher.Constraint("DistanceX", 5, 3, -1, 1, 374.137),
])
sketch10.setExpression("Constraints[39]", "Params.sketch10_radius")
sketch10.setExpression("Constraints[40]", "Params.sketch10_radius2")
sketch10.setExpression("Constraints[41]", "Params.sketch10_width")
sketch10.setExpression("Constraints[45]", "Params.sketch10_width2")
sketch10.setExpression("Constraints[46]", "Params.sketch10_height")
pocket2 = body.newObject("PartDesign::Pocket", "Pocket001")
pocket2.Profile = sketch10
pocket2.setExpression("Length", "Params.pocket2_length")

sketch11 = body.newObject("Sketcher::SketchObject", "Sketch010")
sketch11.AttachmentSupport = (doc.getObject("XY_Plane"), [""])
sketch11.MapMode = "FlatFace"
sketch11.AttachmentOffset = App.Placement(V(0, 0, 6.35), App.Rotation())
add_polygon(sketch11, [(-765, 30), (-765, 20), (-750, 20), (-750, 30)])
add_polygon(sketch11, [(-765, 72), (-750, 72), (-750, 82), (-765, 82)])
sketch11.addConstraint([
    Sketcher.Constraint("Vertical", 0),
    Sketcher.Constraint("Horizontal", 1),
    Sketcher.Constraint("Vertical", 2),
    Sketcher.Constraint("Horizontal", 3),
    Sketcher.Constraint("Horizontal", 4),
    Sketcher.Constraint("Vertical", 5),
    Sketcher.Constraint("Horizontal", 6),
    Sketcher.Constraint("Vertical", 7),
    Sketcher.Constraint("Vertical", 2, 2, 4, 2),
    Sketcher.Constraint("Vertical", 3, 2, 6, 2),
    Sketcher.Constraint("Equal", 2, 5),
    Sketcher.Constraint("DistanceX", 1, 1, 1, 2, 15.0),
    Sketcher.Constraint("DistanceY", 0, 2, 0, 1, 10.0),
    Sketcher.Constraint("DistanceY", 1, 2, 4, 2, 52.0),
    Sketcher.Constraint("DistanceY", -1, 1, 0, 2, 19.8),
    Sketcher.Constraint("DistanceX", 0, 2, -1, 1, 765.21),
])
sketch11.setExpression("Constraints[19]", "Params.sketch11_width")
sketch11.setExpression("Constraints[20]", "Params.sketch11_height")
pocket3 = body.newObject("PartDesign::Pocket", "Pocket002")
pocket3.Profile = sketch11
pocket3.setExpression("Length", "Params.pocket3_length")

doc.recompute()
